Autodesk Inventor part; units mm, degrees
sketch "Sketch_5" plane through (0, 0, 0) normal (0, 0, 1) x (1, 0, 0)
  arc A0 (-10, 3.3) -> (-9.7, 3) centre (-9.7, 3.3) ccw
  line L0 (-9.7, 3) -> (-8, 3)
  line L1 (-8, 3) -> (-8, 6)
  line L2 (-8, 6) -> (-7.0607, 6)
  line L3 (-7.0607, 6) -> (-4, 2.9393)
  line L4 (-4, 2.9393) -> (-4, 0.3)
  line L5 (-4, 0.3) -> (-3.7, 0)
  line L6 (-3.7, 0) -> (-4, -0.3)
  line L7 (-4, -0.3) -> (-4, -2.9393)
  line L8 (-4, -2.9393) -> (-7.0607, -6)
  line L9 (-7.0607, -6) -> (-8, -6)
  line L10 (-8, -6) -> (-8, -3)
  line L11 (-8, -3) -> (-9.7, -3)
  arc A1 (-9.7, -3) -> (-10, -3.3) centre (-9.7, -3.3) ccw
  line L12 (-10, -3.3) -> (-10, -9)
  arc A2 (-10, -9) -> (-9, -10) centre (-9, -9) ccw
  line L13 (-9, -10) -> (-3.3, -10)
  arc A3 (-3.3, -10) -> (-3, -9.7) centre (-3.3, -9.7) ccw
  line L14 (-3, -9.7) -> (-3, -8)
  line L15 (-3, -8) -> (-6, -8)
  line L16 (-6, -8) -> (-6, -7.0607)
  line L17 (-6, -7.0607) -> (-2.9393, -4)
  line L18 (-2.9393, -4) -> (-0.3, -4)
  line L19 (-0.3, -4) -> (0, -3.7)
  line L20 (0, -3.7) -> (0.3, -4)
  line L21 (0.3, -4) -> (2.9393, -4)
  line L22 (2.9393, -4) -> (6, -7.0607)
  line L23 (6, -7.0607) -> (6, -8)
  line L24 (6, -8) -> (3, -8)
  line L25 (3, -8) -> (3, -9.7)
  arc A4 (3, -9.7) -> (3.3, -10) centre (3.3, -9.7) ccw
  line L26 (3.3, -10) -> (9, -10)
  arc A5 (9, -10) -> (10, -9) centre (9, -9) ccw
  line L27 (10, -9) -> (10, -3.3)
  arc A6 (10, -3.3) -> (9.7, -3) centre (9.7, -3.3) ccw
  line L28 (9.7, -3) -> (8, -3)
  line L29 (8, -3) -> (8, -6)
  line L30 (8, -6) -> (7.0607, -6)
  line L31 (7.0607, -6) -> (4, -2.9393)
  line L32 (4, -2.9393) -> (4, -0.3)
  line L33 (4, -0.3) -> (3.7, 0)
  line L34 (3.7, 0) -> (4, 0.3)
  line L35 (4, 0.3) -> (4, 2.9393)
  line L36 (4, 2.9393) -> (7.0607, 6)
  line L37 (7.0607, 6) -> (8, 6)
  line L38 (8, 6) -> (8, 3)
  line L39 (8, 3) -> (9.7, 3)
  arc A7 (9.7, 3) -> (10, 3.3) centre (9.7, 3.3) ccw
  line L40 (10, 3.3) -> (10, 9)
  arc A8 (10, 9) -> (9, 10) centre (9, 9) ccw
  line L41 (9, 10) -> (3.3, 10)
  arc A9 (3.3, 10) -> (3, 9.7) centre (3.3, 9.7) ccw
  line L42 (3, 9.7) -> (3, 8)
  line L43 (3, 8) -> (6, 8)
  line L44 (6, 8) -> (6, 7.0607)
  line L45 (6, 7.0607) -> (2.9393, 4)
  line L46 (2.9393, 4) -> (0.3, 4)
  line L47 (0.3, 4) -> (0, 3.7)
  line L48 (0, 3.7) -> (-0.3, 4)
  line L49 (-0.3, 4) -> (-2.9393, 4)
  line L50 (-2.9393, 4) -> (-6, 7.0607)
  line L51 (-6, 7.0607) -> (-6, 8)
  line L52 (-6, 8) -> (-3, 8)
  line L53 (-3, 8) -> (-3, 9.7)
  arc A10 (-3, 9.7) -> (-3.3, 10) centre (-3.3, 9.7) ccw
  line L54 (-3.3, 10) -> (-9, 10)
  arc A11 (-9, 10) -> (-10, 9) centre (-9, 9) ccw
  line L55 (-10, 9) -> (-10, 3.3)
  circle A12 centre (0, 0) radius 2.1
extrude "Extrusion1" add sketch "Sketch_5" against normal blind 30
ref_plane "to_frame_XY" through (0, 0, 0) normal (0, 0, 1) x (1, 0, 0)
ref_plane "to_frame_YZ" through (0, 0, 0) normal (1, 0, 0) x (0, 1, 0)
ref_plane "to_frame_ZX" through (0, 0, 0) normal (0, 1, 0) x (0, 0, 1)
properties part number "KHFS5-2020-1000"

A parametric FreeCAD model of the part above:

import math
import FreeCAD as App
import Part
import Sketcher

doc = App.newDocument("Part")
params = doc.addObject("Spreadsheet::Sheet", "Params")
for row, (alias, value) in enumerate([
    ("sketch1_radius", "1 mm"),
    ("sketch1_diameter", "4.2 mm"),
    ("sketch1_radius2", "0.3 mm"),
    ("sketch1_width", "3 mm"),
    ("sketch1_width2", "1.7 mm"),
    ("pad1_length", "30 mm"),
], start=1):
    params.set(f"A{row}", alias)
    params.set(f"B{row}", "=" + value)
    params.setAlias(f"B{row}", alias)

body = doc.addObject("PartDesign::Body", "Body")

# Sketch on XY plane
sketch1 = body.newObject("Sketcher::SketchObject", "Sketch")
sketch1.AttachmentSupport = (doc.getObject("XY_Plane"), [""])
sketch1.MapMode = "FlatFace"
sketch1.addGeometry([
    Part.LineSegment(App.Vector(-10, 9, 0), App.Vector(-10, 3.3, 0)),  # 0
    Part.ArcOfCircle(Part.Circle(App.Vector(-9.7, 3.3, 0), App.Vector(0, 0, 1), 0.3), math.radians(180), math.radians(270)),  # 1
    Part.LineSegment(App.Vector(-9.7, 3, 0), App.Vector(-8, 3, 0)),  # 2
    Part.LineSegment(App.Vector(-8, 3, 0), App.Vector(-8, 6, 0)),  # 3
    Part.LineSegment(App.Vector(-8, 6, 0), App.Vector(-7.06, 6, 0)),  # 4
    Part.LineSegment(App.Vector(-7.06, 6, 0), App.Vector(-4, 2.94, 0)),  # 5
    Part.LineSegment(App.Vector(-4, 2.94, 0), App.Vector(-4, 0.3, 0)),  # 6
    Part.LineSegment(App.Vector(-4, 0.3, 0), App.Vector(-3.7, 0, 0)),  # 7
    Part.LineSegment(App.Vector(-3.7, 0, 0), App.Vector(-4, -0.3, 0)),  # 8
    Part.LineSegment(App.Vector(-4, -0.3, 0), App.Vector(-4, -2.94, 0)),  # 9
    Part.LineSegment(App.Vector(-4, -2.94, 0), App.Vector(-7.06, -6, 0)),  # 10
    Part.LineSegment(App.Vector(-7.06, -6, 0), App.Vector(-8, -6, 0)),  # 11
    Part.LineSegment(App.Vector(-8, -6, 0), App.Vector(-8, -3, 0)),  # 12
    Part.LineSegment(App.Vector(-8, -3, 0), App.Vector(-9.7, -3, 0)),  # 13
    Part.ArcOfCircle(Part.Circle(App.Vector(-9.7, -3.3, 0), App.Vector(0, 0, 1), 0.3), math.radians(90), math.radians(180)),  # 14
    Part.LineSegment(App.Vector(-10, -3.3, 0), App.Vector(-10, -9, 0)),  # 15
    Part.ArcOfCircle(Part.Circle(App.Vector(-9, -9, 0), App.Vector(0, 0, 1), 1), math.radians(180), math.radians(270)),  # 16
    Part.LineSegment(App.Vector(-9, -10, 0), App.Vector(-3.3, -10, 0)),  # 17
    Part.ArcOfCircle(Part.Circle(App.Vector(-3.3, -9.7, 0), App.Vector(0, 0, 1), 0.3), math.radians(-90), math.radians(0)),  # 18
    Part.LineSegment(App.Vector(-3, -9.7, 0), App.Vector(-3, -8, 0)),  # 19
    Part.LineSegment(App.Vector(-3, -8, 0), App.Vector(-6, -8, 0)),  # 20
    Part.LineSegment(App.Vector(-6, -8, 0), App.Vector(-6, -7.06, 0)),  # 21
    Part.LineSegment(App.Vector(-6, -7.06, 0), App.Vector(-2.94, -4, 0)),  # 22
    Part.LineSegment(App.Vector(-2.94, -4, 0), App.Vector(-0.3, -4, 0)),  # 23
    Part.LineSegment(App.Vector(-0.3, -4, 0), App.Vector(0, -3.7, 0)),  # 24
    Part.LineSegment(App.Vector(0, -3.7, 0), App.Vector(0.3, -4, 0)),  # 25
    Part.LineSegment(App.Vector(0.3, -4, 0), App.Vector(2.94, -4, 0)),  # 26
    Part.LineSegment(App.Vector(2.94, -4, 0), App.Vector(6, -7.06, 0)),  # 27
    Part.LineSegment(App.Vector(6, -7.06, 0), App.Vector(6, -8, 0)),  # 28
    Part.LineSegment(App.Vector(6, -8, 0), App.Vector(3, -8, 0)),  # 29
    Part.LineSegment(App.Vector(3, -8, 0), App.Vector(3, -9.7, 0)),  # 30
    Part.ArcOfCircle(Part.Circle(App.Vector(3.3, -9.7, 0), App.Vector(0, 0, 1), 0.3), math.radians(180), math.radians(270)),  # 31
    Part.LineSegment(App.Vector(3.3, -10, 0), App.Vector(9, -10, 0)),  # 32
    Part.ArcOfCircle(Part.Circle(App.Vector(9, -9, 0), App.Vector(0, 0, 1), 1), math.radians(-90), math.radians(0)),  # 33
    Part.LineSegment(App.Vector(10, -9, 0), App.Vector(10, -3.3, 0)),  # 34
    Part.ArcOfCircle(Part.Circle(App.Vector(9.7, -3.3, 0), App.Vector(0, 0, 1), 0.3), math.radians(0), math.radians(90)),  # 35
    Part.LineSegment(App.Vector(9.7, -3, 0), App.Vector(8, -3, 0)),  # 36
    Part.LineSegment(App.Vector(8, -3, 0), App.Vector(8, -6, 0)),  # 37
    Part.LineSegment(App.Vector(8, -6, 0), App.Vector(7.06, -6, 0)),  # 38
    Part.LineSegment(App.Vector(7.06, -6, 0), App.Vector(4, -2.94, 0)),  # 39
    Part.LineSegment(App.Vector(4, -2.94, 0), App.Vector(4, -0.3, 0)),  # 40
    Part.LineSegment(App.Vector(4, -0.3, 0), App.Vector(3.7, 0, 0)),  # 41
    Part.LineSegment(App.Vector(3.7, 0, 0), App.Vector(4, 0.3, 0)),  # 42
    Part.LineSegment(App.Vector(4, 0.3, 0), App.Vector(4, 2.94, 0)),  # 43
    Part.LineSegment(App.Vector(4, 2.94, 0), App.Vector(7.06, 6, 0)),  # 44
    Part.LineSegment(App.Vector(7.06, 6, 0), App.Vector(8, 6, 0)),  # 45
    Part.LineSegment(App.Vector(8, 6, 0), App.Vector(8, 3, 0)),  # 46
    Part.LineSegment(App.Vector(8, 3, 0), App.Vector(9.7, 3, 0)),  # 47
    Part.ArcOfCircle(Part.Circle(App.Vector(9.7, 3.3, 0), App.Vector(0, 0, 1), 0.3), math.radians(-90), math.radians(0)),  # 48
    Part.LineSegment(App.Vector(10, 3.3, 0), App.Vector(10, 9, 0)),  # 49
    Part.ArcOfCircle(Part.Circle(App.Vector(9, 9, 0), App.Vector(0, 0, 1), 1), math.radians(0), math.radians(90)),  # 50
    Part.LineSegment(App.Vector(9, 10, 0), App.Vector(3.3, 10, 0)),  # 51
    Part.ArcOfCircle(Part.Circle(App.Vector(3.3, 9.7, 0), App.Vector(0, 0, 1), 0.3), math.radians(90), math.radians(180)),  # 52
    Part.LineSegment(App.Vector(3, 9.7, 0), App.Vector(3, 8, 0)),  # 53
    Part.LineSegment(App.Vector(3, 8, 0), App.Vector(6, 8, 0)),  # 54
    Part.LineSegment(App.Vector(6, 8, 0), App.Vector(6, 7.06, 0)),  # 55
    Part.LineSegment(App.Vector(6, 7.06, 0), App.Vector(2.94, 4, 0)),  # 56
    Part.LineSegment(App.Vector(2.94, 4, 0), App.Vector(0.3, 4, 0)),  # 57
    Part.LineSegment(App.Vector(0.3, 4, 0), App.Vector(0, 3.7, 0)),  # 58
    Part.LineSegment(App.Vector(0, 3.7, 0), App.Vector(-0.3, 4, 0)),  # 59
    Part.LineSegment(App.Vector(-0.3, 4, 0), App.Vector(-2.94, 4, 0)),  # 60
    Part.LineSegment(App.Vector(-2.94, 4, 0), App.Vector(-6, 7.06, 0)),  # 61
    Part.LineSegment(App.Vector(-6, 7.06, 0), App.Vector(-6, 8, 0)),  # 62
    Part.LineSegment(App.Vector(-6, 8, 0), App.Vector(-3, 8, 0)),  # 63
    Part.LineSegment(App.Vector(-3, 8, 0), App.Vector(-3, 9.7, 0)),  # 64
    Part.ArcOfCircle(Part.Circle(App.Vector(-3.3, 9.7, 0), App.Vector(0, 0, 1), 0.3), math.radians(0), math.radians(90)),  # 65
    Part.LineSegment(App.Vector(-3.3, 10, 0), App.Vector(-9, 10, 0)),  # 66
    Part.ArcOfCircle(Part.Circle(App.Vector(-9, 9, 0), App.Vector(0, 0, 1), 1), math.radians(90), math.radians(180)),  # 67
    Part.Circle(App.Vector(0, 0, 0), App.Vector(0, 0, 1), 2.1),  # 68
], False)
sketch1.addConstraint([
    Sketcher.Constraint("Tangent", 0, 2, 1, 1),
    Sketcher.Constraint("Tangent", 1, 2, 2, 1),
    Sketcher.Constraint("Coincident", 2, 2, 3, 1),
    Sketcher.Constraint("Coincident", 3, 2, 4, 1),
    Sketcher.Constraint("Coincident", 4, 2, 5, 1),
    Sketcher.Constraint("Coincident", 5, 2, 6, 1),
    Sketcher.Constraint("Coincident", 6, 2, 7, 1),
    Sketcher.Constraint("Coincident", 7, 2, 8, 1),
    Sketcher.Constraint("Coincident", 8, 2, 9, 1),
    Sketcher.Constraint("Coincident", 9, 2, 10, 1),
    Sketcher.Constraint("Coincident", 10, 2, 11, 1),
    Sketcher.Constraint("Coincident", 11, 2, 12, 1),
    Sketcher.Constraint("Coincident", 12, 2, 13, 1),
    Sketcher.Constraint("Tangent", 13, 2, 14, 1),
    Sketcher.Constraint("Tangent", 14, 2, 15, 1),
    Sketcher.Constraint("Tangent", 15, 2, 16, 1),
    Sketcher.Constraint("Tangent", 16, 2, 17, 1),
    Sketcher.Constraint("Tangent", 17, 2, 18, 1),
    Sketcher.Constraint("Tangent", 18, 2, 19, 1),
    Sketcher.Constraint("Coincident", 19, 2, 20, 1),
    Sketcher.Constraint("Coincident", 20, 2, 21, 1),
    Sketcher.Constraint("Coincident", 21, 2, 22, 1),
    Sketcher.Constraint("Coincident", 22, 2, 23, 1),
    Sketcher.Constraint("Coincident", 23, 2, 24, 1),
    Sketcher.Constraint("Coincident", 24, 2, 25, 1),
    Sketcher.Constraint("Coincident", 25, 2, 26, 1),
    Sketcher.Constraint("Coincident", 26, 2, 27, 1),
    Sketcher.Constraint("Coincident", 27, 2, 28, 1),
    Sketcher.Constraint("Coincident", 28, 2, 29, 1),
    Sketcher.Constraint("Coincident", 29, 2, 30, 1),
    Sketcher.Constraint("Tangent", 30, 2, 31, 1),
    Sketcher.Constraint("Tangent", 31, 2, 32, 1),
    Sketcher.Constraint("Tangent", 32, 2, 33, 1),
    Sketcher.Constraint("Tangent", 33, 2, 34, 1),
    Sketcher.Constraint("Tangent", 34, 2, 35, 1),
    Sketcher.Constraint("Tangent", 35, 2, 36, 1),
    Sketcher.Constraint("Coincident", 36, 2, 37, 1),
    Sketcher.Constraint("Coincident", 37, 2, 38, 1),
    Sketcher.Constraint("Coincident", 38, 2, 39, 1),
    Sketcher.Constraint("Coincident", 39, 2, 40, 1),
    Sketcher.Constraint("Coincident", 40, 2, 41, 1),
    Sketcher.Constraint("Coincident", 41, 2, 42, 1),
    Sketcher.Constraint("Coincident", 42, 2, 43, 1),
    Sketcher.Constraint("Coincident", 43, 2, 44, 1),
    Sketcher.Constraint("Coincident", 44, 2, 45, 1),
    Sketcher.Constraint("Coincident", 45, 2, 46, 1),
    Sketcher.Constraint("Coincident", 46, 2, 47, 1),
    Sketcher.Constraint("Tangent", 47, 2, 48, 1),
    Sketcher.Constraint("Tangent", 48, 2, 49, 1),
    Sketcher.Constraint("Tangent", 49, 2, 50, 1),
    Sketcher.Constraint("Tangent", 50, 2, 51, 1),
    Sketcher.Constraint("Tangent", 51, 2, 52, 1),
    Sketcher.Constraint("Tangent", 52, 2, 53, 1),
    Sketcher.Constraint("Coincident", 53, 2, 54, 1),
    Sketcher.Constraint("Coincident", 54, 2, 55, 1),
    Sketcher.Constraint("Coincident", 55, 2, 56, 1),
    Sketcher.Constraint("Coincident", 56, 2, 57, 1),
    Sketcher.Constraint("Coincident", 57, 2, 58, 1),
    Sketcher.Constraint("Coincident", 58, 2, 59, 1),
    Sketcher.Constraint("Coincident", 59, 2, 60, 1),
    Sketcher.Constraint("Coincident", 60, 2, 61, 1),
    Sketcher.Constraint("Coincident", 61, 2, 62, 1),
    Sketcher.Constraint("Coincident", 62, 2, 63, 1),
    Sketcher.Constraint("Coincident", 63, 2, 64, 1),
    Sketcher.Constraint("Tangent", 64, 2, 65, 1),
    Sketcher.Constraint("Tangent", 65, 2, 66, 1),
    Sketcher.Constraint("Tangent", 66, 2, 67, 1),
    Sketcher.Constraint("Tangent", 67, 2, 0, 1),
    Sketcher.Constraint("Vertical", 0),
    Sketcher.Constraint("Horizontal", 2),
    Sketcher.Constraint("Vertical", 3),
    Sketcher.Constraint("Horizontal", 4),
    Sketcher.Constraint("Vertical", 6),
    Sketcher.Constraint("Vertical", 9),
    Sketcher.Constraint("Horizontal", 11),
    Sketcher.Constraint("Vertical", 12),
    Sketcher.Constraint("Horizontal", 13),
    Sketcher.Constraint("Vertical", 15),
    Sketcher.Constraint("Horizontal", 17),
    Sketcher.Constraint("Vertical", 19),
    Sketcher.Constraint("Horizontal", 20),
    Sketcher.Constraint("Vertical", 21),
    Sketcher.Constraint("Horizontal", 23),
    Sketcher.Constraint("Horizontal", 26),
    Sketcher.Constraint("Vertical", 28),
    Sketcher.Constraint("Horizontal", 29),
    Sketcher.Constraint("Vertical", 30),
    Sketcher.Constraint("Horizontal", 32),
    Sketcher.Constraint("Vertical", 34),
    Sketcher.Constraint("Horizontal", 36),
    Sketcher.Constraint("Vertical", 37),
    Sketcher.Constraint("Horizontal", 38),
    Sketcher.Constraint("Vertical", 40),
    Sketcher.Constraint("Vertical", 43),
    Sketcher.Constraint("Horizontal", 45),
    Sketcher.Constraint("Vertical", 46),
    Sketcher.Constraint("Horizontal", 47),
    Sketcher.Constraint("Vertical", 49),
    Sketcher.Constraint("Horizontal", 51),
    Sketcher.Constraint("Vertical", 53),
    Sketcher.Constraint("Horizontal", 54),
    Sketcher.Constraint("Vertical", 55),
    Sketcher.Constraint("Horizontal", 57),
    Sketcher.Constraint("Horizontal", 60),
    Sketcher.Constraint("Vertical", 62),
    Sketcher.Constraint("Horizontal", 63),
    Sketcher.Constraint("Vertical", 64),
    Sketcher.Constraint("Horizontal", 66),
    Sketcher.Constraint("Coincident", 68, 3, -1, 1),
    Sketcher.Constraint("Equal", 1, 14),
    Sketcher.Constraint("Equal", 14, 18),
    Sketcher.Constraint("Equal", 18, 31),
    Sketcher.Constraint("Equal", 16, 33),
    Sketcher.Constraint("Equal", 31, 35),
    Sketcher.Constraint("Equal", 35, 48),
    Sketcher.Constraint("Equal", 33, 50),
    Sketcher.Constraint("Equal", 48, 52),
    Sketcher.Constraint("Equal", 52, 65),
    Sketcher.Constraint("Equal", 50, 67),
    Sketcher.Constraint("Symmetric", 1, 3, 35, 3, -1, 1),
    Sketcher.Constraint("Symmetric", 14, 3, 48, 3, -1, 1),
    Sketcher.Constraint("Symmetric", 18, 3, 52, 3, -1, 1),
    Sketcher.Constraint("Symmetric", 31, 3, 65, 3, -1, 1),
    Sketcher.Constraint("Symmetric", 3, 2, 37, 2, -1, 1),
    Sketcher.Constraint("Symmetric", 5, 2, 39, 2, -1, 1),
    Sketcher.Constraint("Symmetric", 7, 2, 41, 2, -1, 1),
    Sketcher.Constraint("Symmetric", 8, 2, 42, 2, -1, 1),
    Sketcher.Constraint("Symmetric", 10, 2, 44, 2, -1, 1),
    Sketcher.Constraint("Symmetric", 20, 2, 54, 2, -1, 1),
    Sketcher.Constraint("Symmetric", 22, 2, 56, 2, -1, 1),
    Sketcher.Constraint("Symmetric", 24, 2, 58, 2, -1, 1),
    Sketcher.Constraint("Symmetric", 25, 2, 59, 2, -1, 1),
    Sketcher.Constraint("Symmetric", 27, 2, 61, 2, -1, 1),
    Sketcher.Constraint("Symmetric", 18, 3, 31, 3, -2),
    Sketcher.Constraint("Symmetric", 14, 3, 35, 3, -2),
    Sketcher.Constraint("Symmetric", 23, 2, 25, 2, -2),
    Sketcher.Constraint("Symmetric", 21, 2, 27, 2, -2),
    Sketcher.Constraint("Symmetric", 11, 2, 37, 2, -2),
    Sketcher.Constraint("Symmetric", 9, 2, 39, 2, -2),
    Sketcher.Constraint("PointOnObject", 7, 2, -1),
    Sketcher.Constraint("PointOnObject", 24, 2, -2),
    Sketcher.Constraint("Parallel", 5, 7),
    Sketcher.Constraint("Perpendicular", 7, 8),
    Sketcher.Constraint("Parallel", 8, 10),
    Sketcher.Constraint("Parallel", 10, 22),
    Sketcher.Constraint("Parallel", 22, 24),
    Sketcher.Constraint("Perpendicular", 24, 25),
    Sketcher.Constraint("Parallel", 25, 27),
    Sketcher.Constraint("Parallel", 27, 39),
    Sketcher.Constraint("Parallel", 39, 41),
    Sketcher.Constraint("Parallel", 42, 44),
    Sketcher.Constraint("Parallel", 44, 56),
    Sketcher.Constraint("Parallel", 56, 58),
    Sketcher.Constraint("Parallel", 59, 61),
    Sketcher.Constraint("Horizontal", 20, 2, 28, 2),
    Sketcher.Constraint("Horizontal", 54, 2, 62, 2),
    Sketcher.Constraint("Vertical", 37, 2, 45, 2),
    Sketcher.Constraint("Equal", 66, 0),
    Sketcher.Constraint("Equal", 63, 3),
    Sketcher.Constraint("Equal", 60, 6),
    Sketcher.Constraint("Equal", 47, 19),
    Sketcher.Constraint("Equal", 45, 21),
    Sketcher.Constraint("Equal", 10, 22),
    Sketcher.Constraint("Equal", 8, 24),
    Sketcher.Constraint("Radius", 16, 1.0),
    Sketcher.Constraint("Diameter", 68, 4.2),
    Sketcher.Constraint("Radius", 1, 0.3),
    Sketcher.Constraint("DistanceX", 20, 2, 20, 1, 3.0),
    Sketcher.Constraint("DistanceX", 2, 1, 2, 2, 1.7),
    Sketcher.Constraint("DistanceX", 17, 1, 17, 2, 5.7),
    Sketcher.Constraint("DistanceX", 16, 3, -1, 1, 9.0),
    Sketcher.Constraint("DistanceX", 5, 2, -1, 1, 4.0),
    Sketcher.Constraint("DistanceY", -1, 1, 6, 2, 0.3),
    Sketcher.Constraint("DistanceX", 4, 1, 4, 2, 0.9393),
])
sketch1.setExpression("Constraints[164]", "Params.sketch1_radius")
sketch1.setExpression("Constraints[165]", "Params.sketch1_diameter")
sketch1.setExpression("Constraints[166]", "Params.sketch1_radius2")
sketch1.setExpression("Constraints[167]", "Params.sketch1_width")
sketch1.setExpression("Constraints[168]", "Params.sketch1_width2")
pad1 = body.newObject("PartDesign::Pad", "Pad")
pad1.Profile = sketch1
pad1.setExpression("Length", "Params.pad1_length")
pad1.Reversed = True

doc.recompute()
